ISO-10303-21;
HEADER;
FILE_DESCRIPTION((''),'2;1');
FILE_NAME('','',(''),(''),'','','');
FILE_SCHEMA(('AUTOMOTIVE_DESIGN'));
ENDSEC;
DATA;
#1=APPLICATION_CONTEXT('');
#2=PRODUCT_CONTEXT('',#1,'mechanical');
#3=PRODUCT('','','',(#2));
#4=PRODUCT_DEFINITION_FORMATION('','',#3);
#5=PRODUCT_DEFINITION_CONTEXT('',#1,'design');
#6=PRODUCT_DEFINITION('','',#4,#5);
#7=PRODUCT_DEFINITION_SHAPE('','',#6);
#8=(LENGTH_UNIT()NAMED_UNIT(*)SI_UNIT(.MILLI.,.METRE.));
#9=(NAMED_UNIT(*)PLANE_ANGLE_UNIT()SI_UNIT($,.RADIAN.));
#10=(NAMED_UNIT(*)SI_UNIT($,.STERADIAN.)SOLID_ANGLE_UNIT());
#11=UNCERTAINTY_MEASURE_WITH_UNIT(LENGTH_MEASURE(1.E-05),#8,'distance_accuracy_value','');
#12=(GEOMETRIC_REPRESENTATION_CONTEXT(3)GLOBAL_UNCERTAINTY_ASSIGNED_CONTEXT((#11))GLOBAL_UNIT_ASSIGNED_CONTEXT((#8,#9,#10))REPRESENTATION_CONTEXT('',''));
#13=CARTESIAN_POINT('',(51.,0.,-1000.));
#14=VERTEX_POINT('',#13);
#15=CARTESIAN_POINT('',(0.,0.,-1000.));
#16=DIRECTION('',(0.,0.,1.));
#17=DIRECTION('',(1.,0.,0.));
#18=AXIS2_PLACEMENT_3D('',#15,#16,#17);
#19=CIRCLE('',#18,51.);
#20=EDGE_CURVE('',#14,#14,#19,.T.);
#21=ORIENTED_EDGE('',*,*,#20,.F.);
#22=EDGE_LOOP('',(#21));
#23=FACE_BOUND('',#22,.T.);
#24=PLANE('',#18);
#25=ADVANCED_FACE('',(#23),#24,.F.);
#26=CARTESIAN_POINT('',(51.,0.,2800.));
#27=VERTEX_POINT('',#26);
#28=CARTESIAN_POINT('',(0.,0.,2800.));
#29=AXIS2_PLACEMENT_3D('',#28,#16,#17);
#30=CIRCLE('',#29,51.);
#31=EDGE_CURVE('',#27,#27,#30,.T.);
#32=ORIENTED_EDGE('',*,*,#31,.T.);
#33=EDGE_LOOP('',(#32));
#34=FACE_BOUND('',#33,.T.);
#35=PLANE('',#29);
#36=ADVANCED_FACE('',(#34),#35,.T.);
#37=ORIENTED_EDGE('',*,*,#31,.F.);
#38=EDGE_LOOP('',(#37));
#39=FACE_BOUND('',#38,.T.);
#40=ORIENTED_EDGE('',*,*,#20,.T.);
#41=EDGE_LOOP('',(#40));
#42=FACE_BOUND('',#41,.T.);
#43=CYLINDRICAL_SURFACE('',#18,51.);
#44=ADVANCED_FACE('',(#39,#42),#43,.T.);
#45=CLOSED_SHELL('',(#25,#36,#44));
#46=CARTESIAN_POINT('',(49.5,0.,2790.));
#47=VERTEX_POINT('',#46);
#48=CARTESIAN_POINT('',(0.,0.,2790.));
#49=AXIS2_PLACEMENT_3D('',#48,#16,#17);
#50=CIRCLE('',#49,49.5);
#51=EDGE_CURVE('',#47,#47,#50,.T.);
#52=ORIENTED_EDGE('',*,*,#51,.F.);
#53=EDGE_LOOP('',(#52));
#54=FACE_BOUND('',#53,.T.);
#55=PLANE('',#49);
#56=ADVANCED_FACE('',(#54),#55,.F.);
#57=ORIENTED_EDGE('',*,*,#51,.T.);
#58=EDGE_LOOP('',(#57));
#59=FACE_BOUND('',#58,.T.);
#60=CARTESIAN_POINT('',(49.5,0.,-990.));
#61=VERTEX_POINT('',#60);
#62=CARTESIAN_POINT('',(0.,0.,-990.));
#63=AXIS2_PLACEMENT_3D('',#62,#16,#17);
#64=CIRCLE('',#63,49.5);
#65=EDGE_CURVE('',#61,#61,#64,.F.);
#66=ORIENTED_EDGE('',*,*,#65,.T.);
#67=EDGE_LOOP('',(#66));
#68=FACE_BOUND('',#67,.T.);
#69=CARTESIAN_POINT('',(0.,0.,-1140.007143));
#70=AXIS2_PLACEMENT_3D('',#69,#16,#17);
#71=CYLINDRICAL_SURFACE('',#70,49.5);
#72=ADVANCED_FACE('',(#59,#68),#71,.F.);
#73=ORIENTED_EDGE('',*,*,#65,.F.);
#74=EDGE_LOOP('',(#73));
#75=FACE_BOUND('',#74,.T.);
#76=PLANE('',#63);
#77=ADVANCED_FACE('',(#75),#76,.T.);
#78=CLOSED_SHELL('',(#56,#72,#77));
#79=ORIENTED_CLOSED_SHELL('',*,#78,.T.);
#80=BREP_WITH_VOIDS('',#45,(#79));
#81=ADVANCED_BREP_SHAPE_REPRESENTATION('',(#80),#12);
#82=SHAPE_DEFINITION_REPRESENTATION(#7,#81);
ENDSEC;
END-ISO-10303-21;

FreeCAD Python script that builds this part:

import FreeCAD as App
import Part
import Sketcher

V = App.Vector

doc = App.newDocument("Part")
body = doc.addObject("PartDesign::Body", "Body")

# Sketch on XY plane
sketch1 = body.newObject("Sketcher::SketchObject", "Sketch")
sketch1.AttachmentSupport = (doc.getObject("XY_Plane"), [""])
sketch1.MapMode = "FlatFace"
sketch1.addGeometry(Part.Circle(V(0, 0, 0), V(0, 0, 1), 51), False)
sketch1.addConstraint([
    Sketcher.Constraint("Coincident", 0, 3, -1, 1),
    Sketcher.Constraint("Diameter", 0, 102.0),
])
pad1 = body.newObject("PartDesign::Pad", "Pad")
pad1.Profile = sketch1
pad1.Type = "TwoLengths"
pad1.Length = 2800
pad1.Length2 = 1000

# Sketch on XY plane
sketch2 = body.newObject("Sketcher::SketchObject", "Sketch001")
sketch2.AttachmentSupport = (doc.getObject("XY_Plane"), [""])
sketch2.MapMode = "FlatFace"
sketch2.addGeometry(Part.Circle(V(0, 0, 0), V(0, 0, 1), 50), False)
sketch2.addConstraint([
    Sketcher.Constraint("Coincident", 0, 3, -1, 1),
    Sketcher.Constraint("Diameter", 0, 99.0),
])
pocket1 = body.newObject("PartDesign::Pocket", "Pocket")
pocket1.Profile = sketch2
pocket1.Type = "TwoLengths"
pocket1.Length = 2790
pocket1.Length2 = 990
pocket1.Reversed = True

doc.recompute()
